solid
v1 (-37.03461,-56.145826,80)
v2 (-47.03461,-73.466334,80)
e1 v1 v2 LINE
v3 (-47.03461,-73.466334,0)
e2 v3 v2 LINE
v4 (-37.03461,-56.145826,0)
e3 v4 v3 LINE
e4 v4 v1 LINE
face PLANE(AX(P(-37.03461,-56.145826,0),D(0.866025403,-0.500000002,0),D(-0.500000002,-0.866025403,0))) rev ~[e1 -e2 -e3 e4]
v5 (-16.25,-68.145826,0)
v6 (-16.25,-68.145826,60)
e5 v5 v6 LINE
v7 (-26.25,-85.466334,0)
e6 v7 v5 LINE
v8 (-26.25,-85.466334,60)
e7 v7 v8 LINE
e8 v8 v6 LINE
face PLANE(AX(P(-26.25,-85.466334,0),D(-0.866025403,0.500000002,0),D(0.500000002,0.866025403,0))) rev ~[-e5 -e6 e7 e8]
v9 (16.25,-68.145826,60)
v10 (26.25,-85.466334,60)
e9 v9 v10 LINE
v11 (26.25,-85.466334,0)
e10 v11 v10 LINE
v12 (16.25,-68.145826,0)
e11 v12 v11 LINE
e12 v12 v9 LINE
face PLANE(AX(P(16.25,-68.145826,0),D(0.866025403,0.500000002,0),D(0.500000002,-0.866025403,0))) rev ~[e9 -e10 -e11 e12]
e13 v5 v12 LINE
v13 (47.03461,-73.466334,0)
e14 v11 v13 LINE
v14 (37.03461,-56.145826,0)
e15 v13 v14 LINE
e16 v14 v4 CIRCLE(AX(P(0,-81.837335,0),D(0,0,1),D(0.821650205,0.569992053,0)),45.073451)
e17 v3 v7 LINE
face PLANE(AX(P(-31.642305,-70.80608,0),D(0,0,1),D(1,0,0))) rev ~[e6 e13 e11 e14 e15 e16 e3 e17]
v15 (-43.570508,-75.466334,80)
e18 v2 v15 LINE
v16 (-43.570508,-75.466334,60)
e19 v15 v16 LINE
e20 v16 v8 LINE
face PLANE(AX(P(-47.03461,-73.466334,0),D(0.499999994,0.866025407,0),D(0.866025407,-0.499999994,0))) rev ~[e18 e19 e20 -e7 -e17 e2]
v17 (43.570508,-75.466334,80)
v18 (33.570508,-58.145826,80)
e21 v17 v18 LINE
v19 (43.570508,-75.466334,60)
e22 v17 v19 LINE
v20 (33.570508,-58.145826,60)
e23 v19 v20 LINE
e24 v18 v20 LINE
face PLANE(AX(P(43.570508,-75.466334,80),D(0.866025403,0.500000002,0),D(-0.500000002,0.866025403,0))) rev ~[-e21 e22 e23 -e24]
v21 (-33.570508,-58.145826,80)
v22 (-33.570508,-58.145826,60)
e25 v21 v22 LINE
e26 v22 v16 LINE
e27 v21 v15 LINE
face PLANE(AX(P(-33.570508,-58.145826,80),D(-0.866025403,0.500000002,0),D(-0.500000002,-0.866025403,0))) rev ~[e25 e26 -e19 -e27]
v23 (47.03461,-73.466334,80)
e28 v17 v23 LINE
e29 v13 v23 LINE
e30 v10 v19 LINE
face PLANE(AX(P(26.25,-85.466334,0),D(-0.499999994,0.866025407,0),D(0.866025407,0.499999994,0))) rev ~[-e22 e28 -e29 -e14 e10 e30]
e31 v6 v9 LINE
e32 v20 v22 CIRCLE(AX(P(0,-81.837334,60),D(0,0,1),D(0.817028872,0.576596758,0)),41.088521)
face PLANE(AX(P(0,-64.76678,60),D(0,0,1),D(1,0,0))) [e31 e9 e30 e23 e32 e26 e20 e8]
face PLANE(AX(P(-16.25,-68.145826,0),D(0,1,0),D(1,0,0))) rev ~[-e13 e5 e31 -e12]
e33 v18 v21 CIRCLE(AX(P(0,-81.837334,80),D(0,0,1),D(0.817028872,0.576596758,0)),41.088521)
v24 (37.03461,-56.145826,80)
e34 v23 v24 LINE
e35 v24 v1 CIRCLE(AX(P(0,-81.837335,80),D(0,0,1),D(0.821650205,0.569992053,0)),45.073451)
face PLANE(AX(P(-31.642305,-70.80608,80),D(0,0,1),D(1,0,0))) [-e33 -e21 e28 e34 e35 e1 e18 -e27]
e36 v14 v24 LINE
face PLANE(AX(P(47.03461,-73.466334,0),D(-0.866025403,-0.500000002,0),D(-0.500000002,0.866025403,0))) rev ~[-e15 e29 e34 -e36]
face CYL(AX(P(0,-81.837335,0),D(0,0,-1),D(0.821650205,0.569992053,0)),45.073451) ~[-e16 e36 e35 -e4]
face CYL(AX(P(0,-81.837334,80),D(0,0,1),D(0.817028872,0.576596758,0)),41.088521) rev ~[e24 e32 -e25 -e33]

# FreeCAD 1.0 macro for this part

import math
import FreeCAD as App
import Part
import Sketcher

V = App.Vector
Q = App.Units.Quantity

doc = App.newDocument("Part")
body = doc.addObject("PartDesign::Body", "Body")

# Sketch on XY plane
sketch1 = body.newObject("Sketcher::SketchObject", "Sketch")
sketch1.AttachmentSupport = (doc.getObject("XY_Plane"), [""])
sketch1.MapMode = "FlatFace"
sketch1.addGeometry(Part.LineSegment(V(-47, -73, 0), V(-26, -85, 0)), False)
sketch1.addGeometry(Part.LineSegment(V(-26, -85, 0), V(-16, -68, 0)), False)
sketch1.addGeometry(Part.LineSegment(V(-16, -68, 0), V(16, -68, 0)), False)
sketch1.addGeometry(Part.LineSegment(V(16, -68, 0), V(26, -85, 0)), False)
sketch1.addGeometry(Part.LineSegment(V(26, -85, 0), V(47, -73, 0)), False)
sketch1.addGeometry(Part.LineSegment(V(47, -73, 0), V(37, -56, 0)), False)
sketch1.addGeometry(Part.ArcOfCircle(Part.Circle(V(0, -82, 0), V(0, 0, 1), 45), math.radians(35), math.radians(145)), False)
sketch1.addGeometry(Part.LineSegment(V(-37, -56, 0), V(-47, -73, 0)), False)
sketch1.addConstraint(Sketcher.Constraint("Coincident", 0, 2, 1, 1))
sketch1.addConstraint(Sketcher.Constraint("Coincident", 1, 2, 2, 1))
sketch1.addConstraint(Sketcher.Constraint("Coincident", 2, 2, 3, 1))
sketch1.addConstraint(Sketcher.Constraint("Coincident", 3, 2, 4, 1))
sketch1.addConstraint(Sketcher.Constraint("Coincident", 4, 2, 5, 1))
sketch1.addConstraint(Sketcher.Constraint("Coincident", 5, 2, 6, 1))
sketch1.addConstraint(Sketcher.Constraint("Coincident", 6, 2, 7, 1))
sketch1.addConstraint(Sketcher.Constraint("Coincident", 7, 2, 0, 1))
sketch1.addConstraint(Sketcher.Constraint("Horizontal", 2))
sketch1.addConstraint(Sketcher.Constraint("Symmetric", 0, 2, 3, 2, -2))
sketch1.addConstraint(Sketcher.Constraint("Symmetric", 5, 2, 6, 2, -2))
sketch1.addConstraint(Sketcher.Constraint("Symmetric", 4, 2, 7, 2, -2))
sketch1.addConstraint(Sketcher.Constraint("Perpendicular", 0, 1))
sketch1.addConstraint(Sketcher.Constraint("Perpendicular", 3, 4))
sketch1.addConstraint(Sketcher.Constraint("Perpendicular", 4, 5))
sketch1.addConstraint(Sketcher.Constraint("Equal", 3, 5))
sketch1.addConstraint(Sketcher.Constraint("Angle", 0, Q("-30 deg")))
sketch1.addConstraint(Sketcher.Constraint("Distance", 0, Q("24 mm")))
sketch1.addConstraint(Sketcher.Constraint("Distance", 1, Q("20 mm")))
sketch1.addConstraint(Sketcher.Constraint("DistanceX", 2, 1, 2, 2, Q("32.5 mm")))
sketch1.addConstraint(Sketcher.Constraint("Radius", 6, Q("45.073451 mm")))
sketch1.addConstraint(Sketcher.Constraint("DistanceY", 6, 3, -1, 1, Q("81.837335 mm")))
pad1 = body.newObject("PartDesign::Pad", "Pad")
pad1.Profile = sketch1
pad1.Length = 80

# Sketch on XY plane
sketch2 = body.newObject("Sketcher::SketchObject", "Sketch001")
sketch2.AttachmentSupport = (doc.getObject("XY_Plane"), [""])
sketch2.MapMode = "FlatFace"
sketch2.AttachmentOffset = App.Placement(V(0, 0, 80), App.Rotation())
sketch2.addGeometry(Part.LineSegment(V(-44, -75, 0), V(-26, -85, 0)), False)
sketch2.addGeometry(Part.LineSegment(V(-26, -85, 0), V(-16, -68, 0)), False)
sketch2.addGeometry(Part.LineSegment(V(-16, -68, 0), V(16, -68, 0)), False)
sketch2.addGeometry(Part.LineSegment(V(16, -68, 0), V(26, -85, 0)), False)
sketch2.addGeometry(Part.LineSegment(V(26, -85, 0), V(44, -75, 0)), False)
sketch2.addGeometry(Part.LineSegment(V(44, -75, 0), V(34, -58, 0)), False)
sketch2.addGeometry(Part.ArcOfCircle(Part.Circle(V(0, -82, 0), V(0, 0, 1), 41), math.radians(35), math.radians(145)), False)
sketch2.addGeometry(Part.LineSegment(V(-34, -58, 0), V(-44, -75, 0)), False)
sketch2.addConstraint(Sketcher.Constraint("Coincident", 0, 2, 1, 1))
sketch2.addConstraint(Sketcher.Constraint("Coincident", 1, 2, 2, 1))
sketch2.addConstraint(Sketcher.Constraint("Coincident", 2, 2, 3, 1))
sketch2.addConstraint(Sketcher.Constraint("Coincident", 3, 2, 4, 1))
sketch2.addConstraint(Sketcher.Constraint("Coincident", 4, 2, 5, 1))
sketch2.addConstraint(Sketcher.Constraint("Coincident", 5, 2, 6, 1))
sketch2.addConstraint(Sketcher.Constraint("Coincident", 6, 2, 7, 1))
sketch2.addConstraint(Sketcher.Constraint("Coincident", 7, 2, 0, 1))
sketch2.addConstraint(Sketcher.Constraint("Horizontal", 2))
sketch2.addConstraint(Sketcher.Constraint("Symmetric", 0, 2, 3, 2, -2))
sketch2.addConstraint(Sketcher.Constraint("Symmetric", 5, 2, 6, 2, -2))
sketch2.addConstraint(Sketcher.Constraint("Symmetric", 4, 2, 7, 2, -2))
sketch2.addConstraint(Sketcher.Constraint("Perpendicular", 0, 1))
sketch2.addConstraint(Sketcher.Constraint("Perpendicular", 3, 4))
sketch2.addConstraint(Sketcher.Constraint("Perpendicular", 4, 5))
sketch2.addConstraint(Sketcher.Constraint("Equal", 0, 1))
sketch2.addConstraint(Sketcher.Constraint("Equal", 4, 5))
sketch2.addConstraint(Sketcher.Constraint("Angle", 0, Q("-30 deg")))
sketch2.addConstraint(Sketcher.Constraint("Distance", 0, Q("20 mm")))
sketch2.addConstraint(Sketcher.Constraint("DistanceX", 2, 1, 2, 2, Q("32.5 mm")))
sketch2.addConstraint(Sketcher.Constraint("Radius", 6, Q("41.088521 mm")))
sketch2.addConstraint(Sketcher.Constraint("DistanceY", 6, 3, -1, 1, Q("81.837334 mm")))
pocket1 = body.newObject("PartDesign::Pocket", "Pocket")
pocket1.Profile = sketch2
pocket1.Length = 20

doc.recompute()
